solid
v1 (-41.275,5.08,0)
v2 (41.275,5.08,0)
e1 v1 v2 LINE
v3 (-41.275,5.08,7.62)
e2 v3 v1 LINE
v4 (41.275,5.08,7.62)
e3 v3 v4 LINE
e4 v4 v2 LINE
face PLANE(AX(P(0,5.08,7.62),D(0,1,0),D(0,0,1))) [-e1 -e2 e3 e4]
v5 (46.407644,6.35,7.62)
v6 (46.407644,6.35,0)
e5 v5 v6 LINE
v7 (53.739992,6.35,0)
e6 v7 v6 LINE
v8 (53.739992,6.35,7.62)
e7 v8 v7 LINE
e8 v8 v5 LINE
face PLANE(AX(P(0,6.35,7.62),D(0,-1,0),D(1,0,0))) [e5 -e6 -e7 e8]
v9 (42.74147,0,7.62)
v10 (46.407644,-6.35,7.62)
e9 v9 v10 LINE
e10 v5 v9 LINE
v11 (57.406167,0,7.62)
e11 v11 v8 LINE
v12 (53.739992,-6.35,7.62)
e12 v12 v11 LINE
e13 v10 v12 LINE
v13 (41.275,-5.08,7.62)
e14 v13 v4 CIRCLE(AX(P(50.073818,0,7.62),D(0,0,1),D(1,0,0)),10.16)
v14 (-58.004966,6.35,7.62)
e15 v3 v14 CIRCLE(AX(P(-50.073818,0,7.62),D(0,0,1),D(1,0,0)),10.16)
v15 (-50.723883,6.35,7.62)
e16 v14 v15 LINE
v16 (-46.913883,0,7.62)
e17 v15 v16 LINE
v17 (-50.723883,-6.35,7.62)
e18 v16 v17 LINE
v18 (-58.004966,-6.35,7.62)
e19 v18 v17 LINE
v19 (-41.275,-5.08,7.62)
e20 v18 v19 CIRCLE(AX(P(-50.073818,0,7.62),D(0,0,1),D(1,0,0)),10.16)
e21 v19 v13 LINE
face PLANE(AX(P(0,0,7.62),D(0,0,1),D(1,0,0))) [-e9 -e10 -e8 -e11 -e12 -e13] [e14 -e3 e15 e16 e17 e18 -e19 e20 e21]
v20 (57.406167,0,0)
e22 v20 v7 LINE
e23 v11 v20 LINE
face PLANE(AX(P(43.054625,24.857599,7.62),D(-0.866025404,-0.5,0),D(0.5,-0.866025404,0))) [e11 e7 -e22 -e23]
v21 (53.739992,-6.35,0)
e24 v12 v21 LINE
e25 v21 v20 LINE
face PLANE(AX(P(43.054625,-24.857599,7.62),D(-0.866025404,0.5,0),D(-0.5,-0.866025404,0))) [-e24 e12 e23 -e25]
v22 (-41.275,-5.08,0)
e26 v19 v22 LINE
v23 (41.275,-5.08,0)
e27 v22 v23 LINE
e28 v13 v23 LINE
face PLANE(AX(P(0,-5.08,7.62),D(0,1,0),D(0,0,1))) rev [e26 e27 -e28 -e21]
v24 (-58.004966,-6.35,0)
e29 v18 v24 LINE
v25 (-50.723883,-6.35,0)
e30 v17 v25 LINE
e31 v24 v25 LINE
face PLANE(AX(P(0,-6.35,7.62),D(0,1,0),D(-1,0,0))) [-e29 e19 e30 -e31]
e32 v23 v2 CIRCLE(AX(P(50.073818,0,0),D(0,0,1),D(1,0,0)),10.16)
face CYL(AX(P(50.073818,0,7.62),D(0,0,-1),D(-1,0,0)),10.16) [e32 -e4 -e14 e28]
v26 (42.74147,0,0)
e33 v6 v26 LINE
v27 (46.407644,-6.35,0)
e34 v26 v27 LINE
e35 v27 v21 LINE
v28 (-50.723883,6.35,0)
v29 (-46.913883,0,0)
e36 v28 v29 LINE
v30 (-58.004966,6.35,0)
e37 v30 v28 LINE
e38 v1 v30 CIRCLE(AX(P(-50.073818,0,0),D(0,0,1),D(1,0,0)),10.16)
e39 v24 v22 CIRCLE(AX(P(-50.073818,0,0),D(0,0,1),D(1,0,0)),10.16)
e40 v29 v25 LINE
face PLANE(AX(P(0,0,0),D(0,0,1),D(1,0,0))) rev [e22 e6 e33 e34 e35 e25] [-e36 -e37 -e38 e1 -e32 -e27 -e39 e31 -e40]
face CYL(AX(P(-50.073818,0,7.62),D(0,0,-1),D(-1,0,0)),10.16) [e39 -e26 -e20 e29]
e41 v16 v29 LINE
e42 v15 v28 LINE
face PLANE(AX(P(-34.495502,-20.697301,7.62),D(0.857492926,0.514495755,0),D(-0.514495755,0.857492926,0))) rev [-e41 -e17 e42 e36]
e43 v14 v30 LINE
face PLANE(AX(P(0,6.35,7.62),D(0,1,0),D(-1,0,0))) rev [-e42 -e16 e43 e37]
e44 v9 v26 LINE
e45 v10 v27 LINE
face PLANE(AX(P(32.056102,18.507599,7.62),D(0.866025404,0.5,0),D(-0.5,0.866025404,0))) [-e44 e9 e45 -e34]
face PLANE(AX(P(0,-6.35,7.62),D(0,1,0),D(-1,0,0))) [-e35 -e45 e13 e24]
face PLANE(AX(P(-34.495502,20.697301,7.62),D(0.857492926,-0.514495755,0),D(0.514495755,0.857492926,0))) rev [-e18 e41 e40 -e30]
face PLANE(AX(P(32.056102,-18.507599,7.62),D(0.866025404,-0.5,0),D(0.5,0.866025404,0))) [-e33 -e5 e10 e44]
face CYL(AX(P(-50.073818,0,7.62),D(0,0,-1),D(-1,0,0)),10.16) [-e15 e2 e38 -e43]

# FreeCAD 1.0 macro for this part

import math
import FreeCAD as App
import Part
import Sketcher
Q = App.Units.Quantity


def add_polygon(sketch, points):
    """Adds a closed chain of lines whose ends are joined by coincident constraints."""
    first, n = sketch.GeometryCount, len(points)
    for a, b in zip(points, points[1:] + points[:1]):
        sketch.addGeometry(Part.LineSegment(App.Vector(*a, 0), App.Vector(*b, 0)), False)
    for i in range(n):
        sketch.addConstraint(Sketcher.Constraint("Coincident", first + i, 2, first + (i + 1) % n, 1))

doc = App.newDocument("Part")
body = doc.addObject("PartDesign::Body", "Body")

# Sketch on XY plane
sketch1 = body.newObject("Sketcher::SketchObject", "Sketch")
sketch1.AttachmentSupport = (doc.getObject("XY_Plane"), [""])
sketch1.MapMode = "FlatFace"
sketch1.addGeometry(Part.LineSegment(App.Vector(-58.004966, 6.35, 0), App.Vector(-50.723883, 6.35, 0)), False)  # 0
sketch1.addGeometry(Part.LineSegment(App.Vector(-50.723883, 6.35, 0), App.Vector(-46.913883, 0, 0)), False)  # 1
sketch1.addGeometry(Part.LineSegment(App.Vector(-46.913883, 0, 0), App.Vector(-50.723883, -6.35, 0)), False)  # 2
sketch1.addGeometry(Part.LineSegment(App.Vector(-50.723883, -6.35, 0), App.Vector(-58.004966, -6.35, 0)), False)  # 3
sketch1.addGeometry(Part.ArcOfCircle(Part.Circle(App.Vector(-50.073818, 0, 0), App.Vector(0, 0, 1), 10.16), math.radians(-141.317813), math.radians(-30)), False)  # 4
sketch1.addGeometry(Part.LineSegment(App.Vector(-41.275, -5.08, 0), App.Vector(41.275, -5.08, 0)), False)  # 5
sketch1.addGeometry(Part.ArcOfCircle(Part.Circle(App.Vector(50.073818, 0, 0), App.Vector(0, 0, 1), 10.16), math.radians(-150), math.radians(150)), False)  # 6
sketch1.addGeometry(Part.LineSegment(App.Vector(41.275, 5.08, 0), App.Vector(-41.275, 5.08, 0)), False)  # 7
sketch1.addGeometry(Part.ArcOfCircle(Part.Circle(App.Vector(-50.073818, 0, 0), App.Vector(0, 0, 1), 10.16), math.radians(30), math.radians(141.317813)), False)  # 8
add_polygon(sketch1, [(53.739992, 6.35), (57.406167, 0), (53.739992, -6.35), (46.407644, -6.35), (42.74147, 0), (46.407644, 6.35)])  # lines 9-14
sketch1.addConstraint([
    Sketcher.Constraint("Coincident", 0, 2, 1, 1),
    Sketcher.Constraint("Coincident", 1, 2, 2, 1),
    Sketcher.Constraint("Coincident", 2, 2, 3, 1),
    Sketcher.Constraint("Coincident", 3, 2, 4, 1),
    Sketcher.Constraint("Coincident", 4, 2, 5, 1),
    Sketcher.Constraint("Coincident", 5, 2, 6, 1),
    Sketcher.Constraint("Coincident", 6, 2, 7, 1),
    Sketcher.Constraint("Coincident", 7, 2, 8, 1),
    Sketcher.Constraint("Coincident", 8, 2, 0, 1),
    Sketcher.Constraint("Horizontal", 0),
    Sketcher.Constraint("Horizontal", 3),
    Sketcher.Constraint("Horizontal", 5),
    Sketcher.Constraint("Horizontal", 7),
    Sketcher.Constraint("Horizontal", 11),
    Sketcher.Constraint("Horizontal", 14),
    Sketcher.Constraint("Coincident", 8, 3, 4, 3),
    Sketcher.Constraint("Equal", 4, 6),
    Sketcher.Constraint("Equal", 6, 8),
    Sketcher.Constraint("Symmetric", 4, 3, 6, 3, -1, 1),
    Sketcher.Constraint("Symmetric", 0, 2, 2, 2, -1),
    Sketcher.Constraint("Symmetric", 5, 2, 6, 2, -1),
    Sketcher.Constraint("Symmetric", 11, 2, 13, 2, -1),
    Sketcher.Constraint("PointOnObject", 1, 2, -1),
    Sketcher.Constraint("PointOnObject", 9, 2, -1),
    Sketcher.Constraint("PointOnObject", 12, 2, -1),
    Sketcher.Constraint("Parallel", 9, 12),
    Sketcher.Constraint("Parallel", 10, 13),
    Sketcher.Constraint("Horizontal", 3, 2, 10, 2),
    Sketcher.Constraint("Radius", 4, Q("0.4 in")),
    Sketcher.Constraint("Angle", 9, Q("-60 deg")),
    Sketcher.Constraint("DistanceX", 5, 1, 5, 2, Q("3.25 in")),
    Sketcher.Constraint("DistanceY", 4, 2, -1, 1, Q("0.2 in")),
    Sketcher.Constraint("DistanceY", 2, 2, 0, 2, Q("0.5 in")),
    Sketcher.Constraint("DistanceX", 0, 2, 1, 2, Q("0.15 in")),
    Sketcher.Constraint("DistanceX", 11, 2, 11, 1, 7.332348),
    Sketcher.Constraint("DistanceX", 0, 2, 6, 3, 100.797701),
    Sketcher.Constraint("DistanceX", -1, 1, 12, 2, 42.74147),
])
pad1 = body.newObject("PartDesign::Pad", "Pad")
pad1.Profile = sketch1
pad1.Length = Q("0.3 in")

doc.recompute()
